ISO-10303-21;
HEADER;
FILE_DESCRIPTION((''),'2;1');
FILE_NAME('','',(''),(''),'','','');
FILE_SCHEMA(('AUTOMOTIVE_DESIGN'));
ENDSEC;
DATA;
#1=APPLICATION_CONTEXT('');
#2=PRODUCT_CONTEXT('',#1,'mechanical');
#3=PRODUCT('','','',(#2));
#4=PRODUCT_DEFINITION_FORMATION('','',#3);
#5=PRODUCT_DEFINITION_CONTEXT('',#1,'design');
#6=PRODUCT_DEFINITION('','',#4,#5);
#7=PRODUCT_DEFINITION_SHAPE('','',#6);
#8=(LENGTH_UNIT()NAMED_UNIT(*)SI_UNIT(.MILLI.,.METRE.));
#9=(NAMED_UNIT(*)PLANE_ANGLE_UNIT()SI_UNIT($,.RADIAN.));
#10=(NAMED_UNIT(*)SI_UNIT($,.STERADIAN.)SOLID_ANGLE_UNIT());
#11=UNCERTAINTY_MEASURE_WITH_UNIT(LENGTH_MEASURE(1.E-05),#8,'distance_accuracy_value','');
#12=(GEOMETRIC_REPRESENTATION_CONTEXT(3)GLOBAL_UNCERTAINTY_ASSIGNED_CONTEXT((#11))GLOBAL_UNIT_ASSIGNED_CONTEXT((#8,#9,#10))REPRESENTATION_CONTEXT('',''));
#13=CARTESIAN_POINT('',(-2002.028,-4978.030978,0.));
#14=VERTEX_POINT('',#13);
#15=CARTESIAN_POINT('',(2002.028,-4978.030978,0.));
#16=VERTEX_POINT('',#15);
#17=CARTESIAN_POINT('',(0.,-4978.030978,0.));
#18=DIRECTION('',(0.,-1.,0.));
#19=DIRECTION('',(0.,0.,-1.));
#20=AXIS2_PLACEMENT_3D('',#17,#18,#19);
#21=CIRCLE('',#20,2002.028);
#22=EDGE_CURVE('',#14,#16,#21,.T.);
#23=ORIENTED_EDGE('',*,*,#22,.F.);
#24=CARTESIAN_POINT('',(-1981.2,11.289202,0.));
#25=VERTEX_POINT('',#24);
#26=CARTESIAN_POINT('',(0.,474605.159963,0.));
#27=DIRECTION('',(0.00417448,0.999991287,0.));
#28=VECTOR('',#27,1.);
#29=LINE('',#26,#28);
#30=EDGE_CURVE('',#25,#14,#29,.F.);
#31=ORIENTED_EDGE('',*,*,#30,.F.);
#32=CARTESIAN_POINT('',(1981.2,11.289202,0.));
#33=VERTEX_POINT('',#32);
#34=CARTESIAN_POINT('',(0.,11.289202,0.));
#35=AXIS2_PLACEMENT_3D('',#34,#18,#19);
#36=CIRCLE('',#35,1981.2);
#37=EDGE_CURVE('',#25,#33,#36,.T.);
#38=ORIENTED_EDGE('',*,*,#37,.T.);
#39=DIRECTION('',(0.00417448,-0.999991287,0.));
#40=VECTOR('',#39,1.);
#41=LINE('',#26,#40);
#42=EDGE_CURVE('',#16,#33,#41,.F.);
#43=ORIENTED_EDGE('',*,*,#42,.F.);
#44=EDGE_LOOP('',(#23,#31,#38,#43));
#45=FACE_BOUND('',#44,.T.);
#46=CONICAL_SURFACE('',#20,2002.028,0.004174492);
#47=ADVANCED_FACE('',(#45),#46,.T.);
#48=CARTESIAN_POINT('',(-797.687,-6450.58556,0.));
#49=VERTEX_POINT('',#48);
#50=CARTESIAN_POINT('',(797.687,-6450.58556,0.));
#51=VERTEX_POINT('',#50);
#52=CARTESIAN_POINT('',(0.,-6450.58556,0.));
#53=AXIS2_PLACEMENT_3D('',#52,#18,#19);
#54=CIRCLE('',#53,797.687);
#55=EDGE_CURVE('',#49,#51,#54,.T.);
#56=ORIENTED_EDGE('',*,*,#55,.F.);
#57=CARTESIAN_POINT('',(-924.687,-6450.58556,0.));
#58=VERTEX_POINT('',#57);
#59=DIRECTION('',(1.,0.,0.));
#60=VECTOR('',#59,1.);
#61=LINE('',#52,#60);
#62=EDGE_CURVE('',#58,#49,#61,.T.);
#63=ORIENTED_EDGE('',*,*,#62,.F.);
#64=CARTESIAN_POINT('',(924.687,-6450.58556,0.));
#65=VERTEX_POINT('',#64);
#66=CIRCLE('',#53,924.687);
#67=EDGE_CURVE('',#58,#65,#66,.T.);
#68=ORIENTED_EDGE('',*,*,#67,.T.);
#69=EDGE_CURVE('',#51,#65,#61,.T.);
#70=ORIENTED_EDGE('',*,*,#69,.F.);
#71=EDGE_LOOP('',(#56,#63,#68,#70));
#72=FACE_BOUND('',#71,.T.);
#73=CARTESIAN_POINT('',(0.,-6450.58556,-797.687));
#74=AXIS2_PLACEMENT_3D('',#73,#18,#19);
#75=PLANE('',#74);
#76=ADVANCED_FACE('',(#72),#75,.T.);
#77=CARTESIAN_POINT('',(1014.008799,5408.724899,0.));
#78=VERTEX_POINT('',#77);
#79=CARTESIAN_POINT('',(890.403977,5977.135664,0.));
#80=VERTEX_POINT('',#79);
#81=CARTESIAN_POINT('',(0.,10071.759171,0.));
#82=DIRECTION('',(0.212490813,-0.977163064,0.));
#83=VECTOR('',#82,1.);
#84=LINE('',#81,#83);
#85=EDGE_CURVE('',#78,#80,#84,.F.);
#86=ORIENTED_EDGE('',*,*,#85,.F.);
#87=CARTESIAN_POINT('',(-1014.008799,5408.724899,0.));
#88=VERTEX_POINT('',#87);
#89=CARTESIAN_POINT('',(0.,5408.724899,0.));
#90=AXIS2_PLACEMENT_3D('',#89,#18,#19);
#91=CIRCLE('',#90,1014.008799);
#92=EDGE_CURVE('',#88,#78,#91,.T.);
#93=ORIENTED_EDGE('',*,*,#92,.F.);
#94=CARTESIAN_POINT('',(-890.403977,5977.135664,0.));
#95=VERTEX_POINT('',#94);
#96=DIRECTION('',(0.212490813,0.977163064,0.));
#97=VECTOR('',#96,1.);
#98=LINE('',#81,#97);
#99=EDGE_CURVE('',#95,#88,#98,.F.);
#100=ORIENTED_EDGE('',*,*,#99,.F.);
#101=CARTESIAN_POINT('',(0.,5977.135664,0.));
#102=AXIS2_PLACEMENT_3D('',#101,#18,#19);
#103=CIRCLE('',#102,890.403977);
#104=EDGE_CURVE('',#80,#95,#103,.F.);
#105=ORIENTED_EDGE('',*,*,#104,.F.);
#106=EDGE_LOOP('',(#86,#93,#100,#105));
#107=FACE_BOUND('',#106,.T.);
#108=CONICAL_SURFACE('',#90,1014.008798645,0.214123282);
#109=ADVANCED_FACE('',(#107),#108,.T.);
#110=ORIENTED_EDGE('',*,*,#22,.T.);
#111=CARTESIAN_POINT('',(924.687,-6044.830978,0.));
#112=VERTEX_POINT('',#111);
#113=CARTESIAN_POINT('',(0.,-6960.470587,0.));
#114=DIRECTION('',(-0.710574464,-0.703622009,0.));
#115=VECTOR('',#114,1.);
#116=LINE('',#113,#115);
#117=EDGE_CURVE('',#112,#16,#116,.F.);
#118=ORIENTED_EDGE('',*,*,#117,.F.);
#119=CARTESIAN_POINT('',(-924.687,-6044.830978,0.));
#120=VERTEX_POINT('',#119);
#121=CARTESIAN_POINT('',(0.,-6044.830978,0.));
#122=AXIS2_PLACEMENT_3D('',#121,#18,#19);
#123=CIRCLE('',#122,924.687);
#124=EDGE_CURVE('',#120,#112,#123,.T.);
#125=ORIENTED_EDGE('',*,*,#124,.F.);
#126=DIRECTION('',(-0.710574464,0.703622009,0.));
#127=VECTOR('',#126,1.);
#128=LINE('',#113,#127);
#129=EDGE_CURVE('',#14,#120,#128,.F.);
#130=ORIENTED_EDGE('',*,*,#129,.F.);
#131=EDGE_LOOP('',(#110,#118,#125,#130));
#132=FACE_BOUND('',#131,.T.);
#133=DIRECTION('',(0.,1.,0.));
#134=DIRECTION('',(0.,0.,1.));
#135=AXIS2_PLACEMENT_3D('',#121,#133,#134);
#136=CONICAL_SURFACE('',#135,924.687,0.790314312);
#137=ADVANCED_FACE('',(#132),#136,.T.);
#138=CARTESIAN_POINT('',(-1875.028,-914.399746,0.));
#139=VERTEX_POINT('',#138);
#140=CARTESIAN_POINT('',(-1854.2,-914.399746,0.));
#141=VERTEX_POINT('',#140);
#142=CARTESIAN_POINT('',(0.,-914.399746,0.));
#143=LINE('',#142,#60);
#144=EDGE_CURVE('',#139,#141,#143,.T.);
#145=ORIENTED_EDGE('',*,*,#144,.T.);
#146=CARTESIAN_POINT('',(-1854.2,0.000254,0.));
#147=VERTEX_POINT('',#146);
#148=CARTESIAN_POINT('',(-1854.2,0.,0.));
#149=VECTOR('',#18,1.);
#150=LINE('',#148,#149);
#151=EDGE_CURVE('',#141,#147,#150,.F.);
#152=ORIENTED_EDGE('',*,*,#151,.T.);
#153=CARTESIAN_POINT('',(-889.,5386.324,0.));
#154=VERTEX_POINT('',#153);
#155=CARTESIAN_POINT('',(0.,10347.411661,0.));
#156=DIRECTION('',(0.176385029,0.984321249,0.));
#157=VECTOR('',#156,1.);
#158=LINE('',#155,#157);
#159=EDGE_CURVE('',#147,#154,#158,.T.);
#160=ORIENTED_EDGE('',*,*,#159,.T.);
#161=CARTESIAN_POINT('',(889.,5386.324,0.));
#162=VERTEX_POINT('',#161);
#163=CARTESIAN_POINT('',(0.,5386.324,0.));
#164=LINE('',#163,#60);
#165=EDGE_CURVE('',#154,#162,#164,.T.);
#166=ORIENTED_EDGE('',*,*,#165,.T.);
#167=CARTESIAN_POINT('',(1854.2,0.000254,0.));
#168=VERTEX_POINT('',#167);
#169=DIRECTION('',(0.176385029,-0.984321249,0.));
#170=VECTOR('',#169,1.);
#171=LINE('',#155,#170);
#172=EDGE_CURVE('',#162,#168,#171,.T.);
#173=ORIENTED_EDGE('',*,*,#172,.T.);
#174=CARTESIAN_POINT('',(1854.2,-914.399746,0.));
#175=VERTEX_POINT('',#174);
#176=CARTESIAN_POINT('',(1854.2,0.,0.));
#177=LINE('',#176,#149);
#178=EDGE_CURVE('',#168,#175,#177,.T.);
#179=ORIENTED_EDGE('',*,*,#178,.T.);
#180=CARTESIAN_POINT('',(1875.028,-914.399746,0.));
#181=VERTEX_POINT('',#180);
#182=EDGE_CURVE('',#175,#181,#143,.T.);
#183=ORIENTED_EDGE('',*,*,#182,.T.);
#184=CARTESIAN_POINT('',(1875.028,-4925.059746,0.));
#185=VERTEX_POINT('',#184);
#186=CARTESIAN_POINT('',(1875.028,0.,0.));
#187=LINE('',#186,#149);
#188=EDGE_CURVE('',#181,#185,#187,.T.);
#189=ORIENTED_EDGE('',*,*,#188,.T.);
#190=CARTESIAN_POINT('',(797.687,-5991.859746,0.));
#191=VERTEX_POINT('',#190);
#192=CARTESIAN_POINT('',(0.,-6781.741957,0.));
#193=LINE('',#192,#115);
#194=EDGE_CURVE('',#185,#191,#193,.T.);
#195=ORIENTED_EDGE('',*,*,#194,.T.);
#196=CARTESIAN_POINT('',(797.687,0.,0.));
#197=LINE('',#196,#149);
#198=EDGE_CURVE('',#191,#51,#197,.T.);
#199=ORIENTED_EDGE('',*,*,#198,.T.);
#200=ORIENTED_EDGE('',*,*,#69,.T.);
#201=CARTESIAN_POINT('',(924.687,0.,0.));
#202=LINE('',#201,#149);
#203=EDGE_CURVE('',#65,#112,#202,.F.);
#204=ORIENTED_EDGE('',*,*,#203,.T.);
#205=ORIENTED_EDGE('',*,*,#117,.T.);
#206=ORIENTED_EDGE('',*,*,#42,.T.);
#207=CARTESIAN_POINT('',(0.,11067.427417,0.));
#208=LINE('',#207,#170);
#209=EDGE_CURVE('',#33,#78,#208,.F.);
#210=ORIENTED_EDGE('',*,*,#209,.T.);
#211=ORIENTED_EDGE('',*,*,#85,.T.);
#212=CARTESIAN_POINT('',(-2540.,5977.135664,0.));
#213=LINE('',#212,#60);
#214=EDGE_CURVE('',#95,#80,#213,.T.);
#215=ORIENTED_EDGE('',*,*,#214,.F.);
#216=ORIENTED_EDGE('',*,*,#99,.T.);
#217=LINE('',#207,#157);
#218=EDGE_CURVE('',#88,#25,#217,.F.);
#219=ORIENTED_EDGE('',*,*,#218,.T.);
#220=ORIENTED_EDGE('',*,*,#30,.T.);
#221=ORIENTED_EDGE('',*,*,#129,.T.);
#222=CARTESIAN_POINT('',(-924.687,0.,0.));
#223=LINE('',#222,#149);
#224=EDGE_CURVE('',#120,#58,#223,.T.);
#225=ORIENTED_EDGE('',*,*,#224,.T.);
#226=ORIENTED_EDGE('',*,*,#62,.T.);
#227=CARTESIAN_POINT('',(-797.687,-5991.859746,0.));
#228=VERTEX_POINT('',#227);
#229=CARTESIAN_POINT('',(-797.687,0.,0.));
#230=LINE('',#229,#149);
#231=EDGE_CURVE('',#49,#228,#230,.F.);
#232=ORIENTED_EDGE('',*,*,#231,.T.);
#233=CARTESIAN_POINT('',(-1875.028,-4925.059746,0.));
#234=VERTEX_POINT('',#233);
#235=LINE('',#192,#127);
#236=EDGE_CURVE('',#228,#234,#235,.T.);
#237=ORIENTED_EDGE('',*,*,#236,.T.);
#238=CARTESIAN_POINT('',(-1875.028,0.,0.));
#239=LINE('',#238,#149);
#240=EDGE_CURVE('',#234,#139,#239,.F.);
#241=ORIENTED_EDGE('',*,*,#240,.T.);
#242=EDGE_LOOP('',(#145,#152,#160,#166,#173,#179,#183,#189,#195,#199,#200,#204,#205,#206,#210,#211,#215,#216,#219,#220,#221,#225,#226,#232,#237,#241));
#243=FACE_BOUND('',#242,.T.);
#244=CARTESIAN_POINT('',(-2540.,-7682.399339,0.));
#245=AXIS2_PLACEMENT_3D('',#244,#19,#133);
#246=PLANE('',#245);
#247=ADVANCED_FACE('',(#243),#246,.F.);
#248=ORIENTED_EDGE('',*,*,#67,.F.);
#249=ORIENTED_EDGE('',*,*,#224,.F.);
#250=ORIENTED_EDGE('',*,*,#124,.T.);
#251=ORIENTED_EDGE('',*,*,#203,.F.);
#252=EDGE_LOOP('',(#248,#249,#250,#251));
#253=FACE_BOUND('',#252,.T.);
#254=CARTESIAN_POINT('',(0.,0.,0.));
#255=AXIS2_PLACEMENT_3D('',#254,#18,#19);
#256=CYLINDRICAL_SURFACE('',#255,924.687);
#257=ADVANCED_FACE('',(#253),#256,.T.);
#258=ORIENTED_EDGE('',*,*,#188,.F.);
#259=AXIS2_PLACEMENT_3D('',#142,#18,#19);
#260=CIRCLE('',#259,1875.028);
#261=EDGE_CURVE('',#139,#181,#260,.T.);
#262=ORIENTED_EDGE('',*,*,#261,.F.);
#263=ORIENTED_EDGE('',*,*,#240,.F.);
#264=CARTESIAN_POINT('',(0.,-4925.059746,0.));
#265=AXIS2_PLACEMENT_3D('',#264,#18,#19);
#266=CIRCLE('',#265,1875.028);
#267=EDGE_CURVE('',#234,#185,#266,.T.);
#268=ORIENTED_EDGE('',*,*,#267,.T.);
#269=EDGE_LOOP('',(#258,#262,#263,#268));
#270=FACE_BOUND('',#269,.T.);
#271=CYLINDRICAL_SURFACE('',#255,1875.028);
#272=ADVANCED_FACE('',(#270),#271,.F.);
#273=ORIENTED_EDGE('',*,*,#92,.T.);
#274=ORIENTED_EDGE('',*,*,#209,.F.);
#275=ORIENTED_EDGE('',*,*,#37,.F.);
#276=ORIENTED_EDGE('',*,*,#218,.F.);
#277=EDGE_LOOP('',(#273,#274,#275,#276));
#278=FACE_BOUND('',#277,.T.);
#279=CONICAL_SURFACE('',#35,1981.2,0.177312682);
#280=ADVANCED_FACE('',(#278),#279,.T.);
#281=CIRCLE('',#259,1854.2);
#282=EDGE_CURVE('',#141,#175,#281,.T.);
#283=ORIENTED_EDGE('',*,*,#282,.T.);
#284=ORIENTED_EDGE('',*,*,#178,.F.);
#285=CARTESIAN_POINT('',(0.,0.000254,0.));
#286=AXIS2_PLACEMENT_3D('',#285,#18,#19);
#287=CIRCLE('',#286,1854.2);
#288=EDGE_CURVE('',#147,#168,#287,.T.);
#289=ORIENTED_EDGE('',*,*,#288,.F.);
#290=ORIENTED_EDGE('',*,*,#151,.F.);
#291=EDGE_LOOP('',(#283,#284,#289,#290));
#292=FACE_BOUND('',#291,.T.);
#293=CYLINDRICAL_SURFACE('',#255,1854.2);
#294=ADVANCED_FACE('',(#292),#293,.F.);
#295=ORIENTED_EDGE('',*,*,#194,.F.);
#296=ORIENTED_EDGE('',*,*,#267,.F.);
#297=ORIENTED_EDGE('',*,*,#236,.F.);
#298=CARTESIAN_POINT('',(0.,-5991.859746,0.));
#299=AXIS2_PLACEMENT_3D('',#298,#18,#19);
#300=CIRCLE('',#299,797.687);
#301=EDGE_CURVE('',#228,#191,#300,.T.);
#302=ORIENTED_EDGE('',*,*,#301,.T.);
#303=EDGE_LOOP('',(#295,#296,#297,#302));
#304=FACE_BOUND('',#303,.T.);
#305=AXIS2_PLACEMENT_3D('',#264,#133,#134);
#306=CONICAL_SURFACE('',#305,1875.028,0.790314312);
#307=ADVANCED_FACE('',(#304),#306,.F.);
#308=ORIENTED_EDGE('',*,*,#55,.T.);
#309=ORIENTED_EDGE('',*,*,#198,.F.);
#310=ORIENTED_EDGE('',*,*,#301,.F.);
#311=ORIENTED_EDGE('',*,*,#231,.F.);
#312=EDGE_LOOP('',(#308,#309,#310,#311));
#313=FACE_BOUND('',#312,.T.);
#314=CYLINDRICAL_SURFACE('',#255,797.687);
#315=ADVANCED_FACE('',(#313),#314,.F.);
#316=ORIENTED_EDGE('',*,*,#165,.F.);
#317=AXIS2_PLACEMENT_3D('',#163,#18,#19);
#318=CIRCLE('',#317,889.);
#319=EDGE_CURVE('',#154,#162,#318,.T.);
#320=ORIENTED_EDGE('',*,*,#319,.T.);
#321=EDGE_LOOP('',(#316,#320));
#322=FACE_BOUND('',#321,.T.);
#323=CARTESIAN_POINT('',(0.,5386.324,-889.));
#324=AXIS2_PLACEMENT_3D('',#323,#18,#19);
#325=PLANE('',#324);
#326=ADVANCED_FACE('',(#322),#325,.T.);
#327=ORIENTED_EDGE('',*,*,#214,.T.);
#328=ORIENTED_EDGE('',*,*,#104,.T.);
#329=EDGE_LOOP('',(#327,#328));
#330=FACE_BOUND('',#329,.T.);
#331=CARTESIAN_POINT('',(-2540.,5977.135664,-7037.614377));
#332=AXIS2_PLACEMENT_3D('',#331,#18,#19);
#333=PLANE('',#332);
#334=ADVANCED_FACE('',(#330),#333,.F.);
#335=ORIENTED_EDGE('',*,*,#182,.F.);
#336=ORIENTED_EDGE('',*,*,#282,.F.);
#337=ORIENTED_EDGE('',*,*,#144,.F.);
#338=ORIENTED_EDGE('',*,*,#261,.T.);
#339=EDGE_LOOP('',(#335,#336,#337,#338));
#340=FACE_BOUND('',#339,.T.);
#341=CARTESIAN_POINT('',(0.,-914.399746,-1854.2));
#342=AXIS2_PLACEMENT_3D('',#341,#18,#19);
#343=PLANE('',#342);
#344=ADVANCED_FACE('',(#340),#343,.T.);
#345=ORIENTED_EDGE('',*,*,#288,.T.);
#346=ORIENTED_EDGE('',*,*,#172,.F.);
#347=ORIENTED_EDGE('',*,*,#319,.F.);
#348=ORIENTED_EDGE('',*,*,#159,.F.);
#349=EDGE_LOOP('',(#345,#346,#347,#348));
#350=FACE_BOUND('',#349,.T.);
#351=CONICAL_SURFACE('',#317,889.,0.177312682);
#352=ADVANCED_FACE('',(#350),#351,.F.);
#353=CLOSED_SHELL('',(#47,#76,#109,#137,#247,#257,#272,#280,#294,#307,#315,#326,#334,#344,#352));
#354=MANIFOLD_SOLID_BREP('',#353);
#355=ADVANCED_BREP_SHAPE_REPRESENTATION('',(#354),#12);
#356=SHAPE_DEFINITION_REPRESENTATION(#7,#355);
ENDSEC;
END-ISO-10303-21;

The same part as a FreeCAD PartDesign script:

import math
import FreeCAD as App
import Part
import Sketcher
Q = App.Units.Quantity

doc = App.newDocument("Part")
params = doc.addObject("Spreadsheet::Sheet", "Params")
for row, (alias, value) in enumerate([
    ("sketch1_width", "36 in"),
    ("sketch1_width2", "55 in"),
    ("sketch1_height", "5 in"),
    ("sketch1_height2", "35 in"),
    ("sketch1_width3", "157.9 in"),
    ("revolution_angle", "360 deg"),
    ("pocket1_length", "200 in"),
], start=1):
    params.set(f"A{row}", alias)
    params.set(f"B{row}", "=" + value)
    params.setAlias(f"B{row}", alias)

body = doc.addObject("PartDesign::Body", "Body")

sketch1 = body.newObject("Sketcher::SketchObject", "Sketch")
sketch1.AttachmentSupport = (doc.getObject("YZ_Plane"), [""])
sketch1.MapMode = "FlatFace"
sketch1.addGeometry([
    Part.LineSegment(App.Vector(5386, -889, 0), App.Vector(0, -1854, 0)),
    Part.LineSegment(App.Vector(0, -1854, 0), App.Vector(-914, -1854, 0)),
    Part.LineSegment(App.Vector(-914, -1854, 0), App.Vector(-914, -1875, 0)),
    Part.LineSegment(App.Vector(-914, -1875, 0), App.Vector(-4925, -1875, 0)),
    Part.LineSegment(App.Vector(-4925, -1875, 0), App.Vector(-5992, -798, 0)),
    Part.LineSegment(App.Vector(-5992, -798, 0), App.Vector(-6451, -798, 0)),
    Part.LineSegment(App.Vector(-6451, -798, 0), App.Vector(-6451, -925, 0)),
    Part.LineSegment(App.Vector(-6451, -925, 0), App.Vector(-6045, -925, 0)),
    Part.LineSegment(App.Vector(-6045, -925, 0), App.Vector(-4978, -2002, 0)),
    Part.LineSegment(App.Vector(-4978, -2002, 0), App.Vector(11, -1981, 0)),
    Part.LineSegment(App.Vector(11, -1981, 0), App.Vector(5409, -1014, 0)),
    Part.LineSegment(App.Vector(5409, -1014, 0), App.Vector(6404, -798, 0)),
    Part.ArcOfCircle(Part.Circle(App.Vector(6251, -236, 0), App.Vector(0, 0, 1), 582), math.radians(-75), math.radians(24)),
    Part.LineSegment(App.Vector(6783, 0, 0), App.Vector(5386, 0, 0)),
    Part.LineSegment(App.Vector(5386, 0, 0), App.Vector(5386, -889, 0)),
], False)
sketch1.addConstraint([
    Sketcher.Constraint("Coincident", 0, 2, 1, 1),
    Sketcher.Constraint("Coincident", 1, 2, 2, 1),
    Sketcher.Constraint("Coincident", 2, 2, 3, 1),
    Sketcher.Constraint("Coincident", 3, 2, 4, 1),
    Sketcher.Constraint("Coincident", 4, 2, 5, 1),
    Sketcher.Constraint("Coincident", 5, 2, 6, 1),
    Sketcher.Constraint("Coincident", 6, 2, 7, 1),
    Sketcher.Constraint("Coincident", 7, 2, 8, 1),
    Sketcher.Constraint("Coincident", 8, 2, 9, 1),
    Sketcher.Constraint("Coincident", 9, 2, 10, 1),
    Sketcher.Constraint("Coincident", 10, 2, 11, 1),
    Sketcher.Constraint("Coincident", 11, 2, 12, 1),
    Sketcher.Constraint("Coincident", 12, 2, 13, 1),
    Sketcher.Constraint("Coincident", 13, 2, 14, 1),
    Sketcher.Constraint("Coincident", 14, 2, 0, 1),
    Sketcher.Constraint("Horizontal", 1),
    Sketcher.Constraint("Vertical", 2),
    Sketcher.Constraint("Horizontal", 3),
    Sketcher.Constraint("Horizontal", 5),
    Sketcher.Constraint("Vertical", 6),
    Sketcher.Constraint("Horizontal", 7),
    Sketcher.Constraint("Horizontal", 13),
    Sketcher.Constraint("Vertical", 14),
    Sketcher.Constraint("PointOnObject", 13, 2, -1),
    Sketcher.Constraint("Parallel", 4, 8),
    Sketcher.Constraint("Parallel", 0, 10),
    Sketcher.Constraint("Horizontal", 5, 2, 11, 2),
    Sketcher.Constraint("Equal", 4, 8),
    Sketcher.Constraint("DistanceX", 1, 2, 1, 1, Q("36 in")),
    Sketcher.Constraint("DistanceX", 13, 2, 13, 1, Q("55 in")),
    Sketcher.Constraint("DistanceY", 6, 2, 6, 1, Q("5 in")),
    Sketcher.Constraint("DistanceY", 14, 2, 14, 1, Q("35 in")),
    Sketcher.Constraint("DistanceX", 3, 2, 3, 1, Q("157.9 in")),
    Sketcher.Constraint("DistanceY", 0, 2, -1, 1, Q("73 in")),
    Sketcher.Constraint("DistanceY", 9, 2, -1, 1, Q("78 in")),
    Sketcher.Constraint("DistanceX", 4, 2, 3, 2, Q("42 in")),
    Sketcher.Constraint("DistanceY", 2, 2, 2, 1, Q("0.82 in")),
    Sketcher.Constraint("DistanceX", -1, 1, 13, 2, Q("212.06 in")),
    Sketcher.Constraint("DistanceY", 4, 2, -1, 1, Q("31.405 in")),
    Sketcher.Constraint("Radius", 12, 581.857436),
    Sketcher.Constraint("DistanceX", 7, 1, 7, 2, 405.754581),
    Sketcher.Constraint("DistanceX", -1, 1, 9, 2, 11.289202),
    Sketcher.Constraint("DistanceX", -1, 1, 10, 2, 5408.724899),
    Sketcher.Constraint("DistanceY", 10, 2, -1, 1, 1014.008799),
    Sketcher.Constraint("DistanceX", 5, 2, 5, 1, 458.725814),
    Sketcher.Constraint("DistanceX", -1, 1, 12, 3, 6251.492789),
])
sketch1.setExpression("Constraints[28]", "Params.sketch1_width")
sketch1.setExpression("Constraints[29]", "Params.sketch1_width2")
sketch1.setExpression("Constraints[30]", "Params.sketch1_height")
sketch1.setExpression("Constraints[31]", "Params.sketch1_height2")
sketch1.setExpression("Constraints[32]", "Params.sketch1_width3")
revolution = body.newObject("PartDesign::Revolution", "Revolution")
revolution.Profile = sketch1
revolution.ReferenceAxis = (sketch1, ["H_Axis"])
revolution.setExpression("Angle", "Params.revolution_angle")

sketch2 = body.newObject("Sketcher::SketchObject", "Sketch001")
sketch2.AttachmentSupport = (doc.getObject("YZ_Plane"), [""])
sketch2.MapMode = "FlatFace"
sketch2.addGeometry([
    Part.LineSegment(App.Vector(5977, 3046, 0), App.Vector(5977, 2694, 0)),
    Part.LineSegment(App.Vector(5977, 2694, 0), App.Vector(-7682, 2694, 0)),
    Part.LineSegment(App.Vector(-7682, 2694, 0), App.Vector(-7682, 0, 0)),
    Part.LineSegment(App.Vector(-7682, 0, 0), App.Vector(5977, 0, 0)),
    Part.LineSegment(App.Vector(5977, 0, 0), App.Vector(5977, -7038, 0)),
    Part.LineSegment(App.Vector(5977, -7038, 0), App.Vector(7003, -7038, 0)),
    Part.LineSegment(App.Vector(7003, -7038, 0), App.Vector(7003, 3046, 0)),
    Part.LineSegment(App.Vector(7003, 3046, 0), App.Vector(5977, 3046, 0)),
], False)
sketch2.addConstraint([
    Sketcher.Constraint("Coincident", 0, 2, 1, 1),
    Sketcher.Constraint("Coincident", 1, 2, 2, 1),
    Sketcher.Constraint("Coincident", 2, 2, 3, 1),
    Sketcher.Constraint("Coincident", 3, 2, 4, 1),
    Sketcher.Constraint("Coincident", 4, 2, 5, 1),
    Sketcher.Constraint("Coincident", 5, 2, 6, 1),
    Sketcher.Constraint("Coincident", 6, 2, 7, 1),
    Sketcher.Constraint("Coincident", 7, 2, 0, 1),
    Sketcher.Constraint("Vertical", 0),
    Sketcher.Constraint("Horizontal", 1),
    Sketcher.Constraint("Vertical", 2),
    Sketcher.Constraint("Horizontal", 3),
    Sketcher.Constraint("Vertical", 4),
    Sketcher.Constraint("Horizontal", 5),
    Sketcher.Constraint("Vertical", 6),
    Sketcher.Constraint("Horizontal", 7),
    Sketcher.Constraint("PointOnObject", 2, 2, -1),
    Sketcher.Constraint("Vertical", 0, 2, 3, 2),
    Sketcher.Constraint("DistanceY", 0, 2, 0, 1, 351.658128),
    Sketcher.Constraint("DistanceY", 4, 2, 0, 2, 9731.9772),
    Sketcher.Constraint("DistanceX", 1, 2, 1, 1, 13659.535003),
    Sketcher.Constraint("DistanceX", 5, 1, 5, 2, 1025.440846),
    Sketcher.Constraint("DistanceY", 2, 2, 2, 1, 2694.362822),
    Sketcher.Constraint("DistanceX", 1, 2, -1, 1, 7682.399339),
])
pocket1 = body.newObject("PartDesign::Pocket", "Pocket")
pocket1.Profile = sketch2
pocket1.setExpression("Length", "Params.pocket1_length")
pocket1.Midplane = True

doc.recompute()
